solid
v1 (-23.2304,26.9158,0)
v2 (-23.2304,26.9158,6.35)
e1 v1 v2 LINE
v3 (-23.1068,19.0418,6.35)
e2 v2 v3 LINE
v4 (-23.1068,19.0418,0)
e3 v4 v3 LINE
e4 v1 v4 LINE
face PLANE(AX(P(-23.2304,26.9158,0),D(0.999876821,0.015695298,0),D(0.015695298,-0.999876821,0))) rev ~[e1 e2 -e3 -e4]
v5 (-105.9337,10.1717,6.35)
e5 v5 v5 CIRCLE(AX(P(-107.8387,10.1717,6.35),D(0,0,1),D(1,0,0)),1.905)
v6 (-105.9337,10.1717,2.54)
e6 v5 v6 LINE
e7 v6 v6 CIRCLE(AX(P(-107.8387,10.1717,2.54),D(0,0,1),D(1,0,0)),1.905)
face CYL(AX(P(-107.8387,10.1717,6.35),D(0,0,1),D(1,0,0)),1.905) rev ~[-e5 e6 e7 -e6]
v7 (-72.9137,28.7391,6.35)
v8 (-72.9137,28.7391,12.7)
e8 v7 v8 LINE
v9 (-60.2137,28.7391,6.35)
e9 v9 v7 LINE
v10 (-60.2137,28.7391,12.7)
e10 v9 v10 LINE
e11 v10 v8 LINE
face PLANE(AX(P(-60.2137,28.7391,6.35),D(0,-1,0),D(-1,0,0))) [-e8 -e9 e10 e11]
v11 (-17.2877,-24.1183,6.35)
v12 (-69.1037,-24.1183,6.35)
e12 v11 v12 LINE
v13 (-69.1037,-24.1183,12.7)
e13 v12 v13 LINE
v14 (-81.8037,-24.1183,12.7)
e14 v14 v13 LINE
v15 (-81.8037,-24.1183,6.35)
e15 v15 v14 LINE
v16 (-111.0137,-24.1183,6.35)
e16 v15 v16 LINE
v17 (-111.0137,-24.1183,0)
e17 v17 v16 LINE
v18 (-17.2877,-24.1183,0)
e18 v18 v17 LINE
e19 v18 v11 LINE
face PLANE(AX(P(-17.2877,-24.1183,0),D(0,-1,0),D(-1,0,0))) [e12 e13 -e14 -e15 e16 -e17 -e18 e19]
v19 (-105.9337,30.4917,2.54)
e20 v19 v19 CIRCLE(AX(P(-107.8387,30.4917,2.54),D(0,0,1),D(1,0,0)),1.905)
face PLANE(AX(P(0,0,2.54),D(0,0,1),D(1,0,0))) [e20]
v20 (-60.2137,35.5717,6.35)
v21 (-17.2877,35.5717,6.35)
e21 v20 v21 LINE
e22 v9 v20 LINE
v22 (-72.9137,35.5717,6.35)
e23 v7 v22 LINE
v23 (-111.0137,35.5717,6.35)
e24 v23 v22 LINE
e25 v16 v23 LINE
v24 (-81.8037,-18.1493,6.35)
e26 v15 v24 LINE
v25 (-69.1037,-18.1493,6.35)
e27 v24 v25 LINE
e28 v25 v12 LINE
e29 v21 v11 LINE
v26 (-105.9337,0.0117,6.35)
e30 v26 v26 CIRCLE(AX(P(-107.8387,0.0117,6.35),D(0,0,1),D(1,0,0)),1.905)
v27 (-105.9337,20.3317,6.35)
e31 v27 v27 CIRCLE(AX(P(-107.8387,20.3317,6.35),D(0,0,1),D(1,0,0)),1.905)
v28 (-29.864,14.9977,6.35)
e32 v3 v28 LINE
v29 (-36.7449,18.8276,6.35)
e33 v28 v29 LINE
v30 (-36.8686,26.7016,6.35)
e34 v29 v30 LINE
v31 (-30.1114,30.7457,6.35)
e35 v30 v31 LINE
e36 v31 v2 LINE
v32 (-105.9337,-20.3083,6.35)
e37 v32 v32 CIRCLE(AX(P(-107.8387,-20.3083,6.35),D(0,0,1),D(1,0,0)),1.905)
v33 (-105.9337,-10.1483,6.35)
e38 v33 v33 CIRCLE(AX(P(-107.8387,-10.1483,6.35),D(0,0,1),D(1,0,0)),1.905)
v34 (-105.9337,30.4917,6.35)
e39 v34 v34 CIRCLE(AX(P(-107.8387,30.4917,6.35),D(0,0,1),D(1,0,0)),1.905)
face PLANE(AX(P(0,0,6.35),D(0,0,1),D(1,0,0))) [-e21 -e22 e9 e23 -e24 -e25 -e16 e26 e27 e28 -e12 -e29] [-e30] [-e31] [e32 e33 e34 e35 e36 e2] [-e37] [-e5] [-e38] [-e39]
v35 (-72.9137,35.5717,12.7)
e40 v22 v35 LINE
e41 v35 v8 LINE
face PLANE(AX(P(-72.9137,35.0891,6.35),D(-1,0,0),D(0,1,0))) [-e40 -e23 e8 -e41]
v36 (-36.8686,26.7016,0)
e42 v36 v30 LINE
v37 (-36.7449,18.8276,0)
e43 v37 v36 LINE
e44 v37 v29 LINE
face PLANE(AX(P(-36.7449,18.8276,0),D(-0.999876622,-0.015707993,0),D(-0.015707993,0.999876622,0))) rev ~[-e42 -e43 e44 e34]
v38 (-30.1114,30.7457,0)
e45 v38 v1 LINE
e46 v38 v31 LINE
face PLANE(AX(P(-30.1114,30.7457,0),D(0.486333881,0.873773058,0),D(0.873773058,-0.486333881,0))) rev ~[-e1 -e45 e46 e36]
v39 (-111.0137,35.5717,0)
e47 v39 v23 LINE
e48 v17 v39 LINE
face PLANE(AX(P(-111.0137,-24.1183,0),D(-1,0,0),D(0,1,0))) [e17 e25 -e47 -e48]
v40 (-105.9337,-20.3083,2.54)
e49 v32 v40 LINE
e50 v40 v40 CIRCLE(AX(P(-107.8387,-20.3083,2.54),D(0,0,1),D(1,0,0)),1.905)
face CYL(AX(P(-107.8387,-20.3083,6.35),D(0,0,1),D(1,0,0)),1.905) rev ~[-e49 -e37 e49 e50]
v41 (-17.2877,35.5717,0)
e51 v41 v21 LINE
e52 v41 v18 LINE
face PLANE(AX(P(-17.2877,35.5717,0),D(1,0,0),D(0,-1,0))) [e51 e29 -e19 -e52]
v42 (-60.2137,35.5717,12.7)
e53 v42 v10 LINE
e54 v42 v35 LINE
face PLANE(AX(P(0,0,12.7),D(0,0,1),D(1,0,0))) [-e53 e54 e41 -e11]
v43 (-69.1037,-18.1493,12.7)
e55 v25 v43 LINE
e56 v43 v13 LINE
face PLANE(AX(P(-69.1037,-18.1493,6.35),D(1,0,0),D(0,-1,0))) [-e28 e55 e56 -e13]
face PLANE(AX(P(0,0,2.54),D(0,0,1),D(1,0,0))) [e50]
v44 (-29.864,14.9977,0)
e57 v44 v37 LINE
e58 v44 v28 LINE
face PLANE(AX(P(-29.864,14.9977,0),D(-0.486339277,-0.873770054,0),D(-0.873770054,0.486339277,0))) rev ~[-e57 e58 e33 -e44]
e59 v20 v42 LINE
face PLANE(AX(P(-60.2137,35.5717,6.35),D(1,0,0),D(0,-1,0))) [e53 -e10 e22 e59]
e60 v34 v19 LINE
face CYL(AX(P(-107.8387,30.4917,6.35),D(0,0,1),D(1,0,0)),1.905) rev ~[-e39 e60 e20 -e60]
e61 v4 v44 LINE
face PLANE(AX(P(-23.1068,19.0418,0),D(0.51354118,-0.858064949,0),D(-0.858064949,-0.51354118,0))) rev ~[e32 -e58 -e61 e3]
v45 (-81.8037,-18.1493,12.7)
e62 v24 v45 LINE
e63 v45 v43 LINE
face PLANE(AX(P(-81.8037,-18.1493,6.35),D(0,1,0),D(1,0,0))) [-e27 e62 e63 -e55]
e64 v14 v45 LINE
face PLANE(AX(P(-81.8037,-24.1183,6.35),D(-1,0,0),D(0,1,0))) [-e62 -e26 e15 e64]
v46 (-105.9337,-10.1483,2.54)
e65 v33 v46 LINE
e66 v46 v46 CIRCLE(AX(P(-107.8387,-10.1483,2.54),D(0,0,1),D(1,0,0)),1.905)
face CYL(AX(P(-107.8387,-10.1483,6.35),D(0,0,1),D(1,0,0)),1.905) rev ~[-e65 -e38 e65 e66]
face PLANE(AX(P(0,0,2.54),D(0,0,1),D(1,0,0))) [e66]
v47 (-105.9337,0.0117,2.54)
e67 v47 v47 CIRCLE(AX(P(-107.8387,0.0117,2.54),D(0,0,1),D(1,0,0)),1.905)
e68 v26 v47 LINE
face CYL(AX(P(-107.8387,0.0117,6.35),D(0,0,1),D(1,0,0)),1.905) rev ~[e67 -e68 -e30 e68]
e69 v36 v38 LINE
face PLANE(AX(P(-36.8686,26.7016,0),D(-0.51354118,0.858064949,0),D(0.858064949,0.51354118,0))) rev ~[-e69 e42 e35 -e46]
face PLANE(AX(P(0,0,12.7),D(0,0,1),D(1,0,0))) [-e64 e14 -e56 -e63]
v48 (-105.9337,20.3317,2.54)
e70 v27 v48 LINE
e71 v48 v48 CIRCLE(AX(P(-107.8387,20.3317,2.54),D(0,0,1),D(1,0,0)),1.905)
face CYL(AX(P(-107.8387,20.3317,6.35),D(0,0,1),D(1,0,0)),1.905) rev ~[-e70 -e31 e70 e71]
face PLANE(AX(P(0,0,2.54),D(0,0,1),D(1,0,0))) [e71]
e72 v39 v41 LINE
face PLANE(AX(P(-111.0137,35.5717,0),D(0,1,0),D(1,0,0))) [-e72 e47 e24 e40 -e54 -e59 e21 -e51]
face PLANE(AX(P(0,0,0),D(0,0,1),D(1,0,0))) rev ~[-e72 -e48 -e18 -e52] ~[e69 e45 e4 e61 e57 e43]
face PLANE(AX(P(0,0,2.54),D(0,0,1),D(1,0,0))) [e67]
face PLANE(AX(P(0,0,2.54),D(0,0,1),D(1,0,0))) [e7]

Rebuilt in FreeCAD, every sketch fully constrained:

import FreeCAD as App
import Part
import Sketcher
from FreeCAD import Vector
Q = App.Units.Quantity


def add_polygon(sketch, points):
    """Adds a closed chain of lines whose ends are joined by coincident constraints."""
    first, n = sketch.GeometryCount, len(points)
    for a, b in zip(points, points[1:] + points[:1]):
        sketch.addGeometry(Part.LineSegment(App.Vector(*a, 0), App.Vector(*b, 0)), False)
    for i in range(n):
        sketch.addConstraint(Sketcher.Constraint("Coincident", first + i, 2, first + (i + 1) % n, 1))

doc = App.newDocument("Part")
body = doc.addObject("PartDesign::Body", "Body")

# Sketch on XY plane
sketch1 = body.newObject("Sketcher::SketchObject", "Sketch")
sketch1.AttachmentSupport = (doc.getObject("XY_Plane"), [""])
sketch1.MapMode = "FlatFace"
add_polygon(sketch1, [(-17, 36), (-111, 36), (-111, -24), (-17, -24)])  # lines 0-3
add_polygon(sketch1, [(-37, 19), (-37, 27), (-30, 31), (-23, 27), (-23, 19), (-30, 15)])  # lines 4-9
sketch1.addConstraint([
    Sketcher.Constraint("Horizontal", 0),
    Sketcher.Constraint("Vertical", 1),
    Sketcher.Constraint("Horizontal", 2),
    Sketcher.Constraint("Vertical", 3),
    Sketcher.Constraint("Parallel", 4, 7),
    Sketcher.Constraint("Parallel", 5, 8),
    Sketcher.Constraint("Parallel", 6, 9),
    Sketcher.Constraint("Equal", 4, 5),
    Sketcher.Constraint("Equal", 5, 6),
    Sketcher.Constraint("Equal", 6, 7),
    Sketcher.Constraint("DistanceX", 0, 2, 0, 1, Q("3.69 in")),
    Sketcher.Constraint("DistanceY", 1, 2, 1, 1, Q("2.35 in")),
    Sketcher.Constraint("DistanceY", 7, 2, 6, 2, Q("0.31 in")),
    Sketcher.Constraint("Angle", 4, Q("90.9 deg")),
    Sketcher.Constraint("Angle", 5, Q("30.9 deg")),
    Sketcher.Constraint("Angle", 6, Q("-29.1 deg")),
    Sketcher.Constraint("DistanceY", 5, 2, 3, 2, Q("0.19 in")),
    Sketcher.Constraint("DistanceX", 5, 2, -1, 1, Q("1.1855 in")),
    Sketcher.Constraint("DistanceX", 4, 2, 3, 2, Q("0.7709 in")),
    Sketcher.Constraint("DistanceY", -1, 1, 0, 2, 35.5717),
])
pad1 = body.newObject("PartDesign::Pad", "Pad")
pad1.Profile = sketch1
pad1.Length = Q("0.25 in")

# Sketch on XY plane
sketch2 = body.newObject("Sketcher::SketchObject", "Sketch001")
sketch2.AttachmentSupport = (doc.getObject("XY_Plane"), [""])
sketch2.MapMode = "FlatFace"
sketch2.AttachmentOffset = App.Placement(Vector(0, 0, 0.25 * 25.4), App.Rotation())
sketch2.addGeometry([
    Part.Circle(Vector(-107.8, 30.5, 0), Vector(0, 0, 1), 1.9),  # 0
    Part.Circle(Vector(-107.8, 20.3, 0), Vector(0, 0, 1), 1.9),  # 1
    Part.Circle(Vector(-107.8, -10.1, 0), Vector(0, 0, 1), 1.9),  # 2
    Part.Circle(Vector(-107.8, -20.3, 0), Vector(0, 0, 1), 1.9),  # 3
    Part.Circle(Vector(-107.8, 10.2, 0), Vector(0, 0, 1), 1.9),  # 4
    Part.Circle(Vector(-107.8, 0, 0), Vector(0, 0, 1), 1.9),  # 5
], False)
sketch2.addConstraint([
    Sketcher.Constraint("Equal", 0, 1),
    Sketcher.Constraint("Equal", 1, 2),
    Sketcher.Constraint("Equal", 2, 3),
    Sketcher.Constraint("Equal", 3, 4),
    Sketcher.Constraint("Equal", 4, 5),
    Sketcher.Constraint("Vertical", 0, 3, 1, 3),
    Sketcher.Constraint("Vertical", 1, 3, 2, 3),
    Sketcher.Constraint("Vertical", 2, 3, 3, 3),
    Sketcher.Constraint("Vertical", 3, 3, 4, 3),
    Sketcher.Constraint("Vertical", 4, 3, 5, 3),
    Sketcher.Constraint("Diameter", 0, Q("0.15 in")),
    Sketcher.Constraint("DistanceY", 1, 3, 0, 3, Q("0.4 in")),
    Sketcher.Constraint("DistanceY", 3, 3, 2, 3, Q("0.4 in")),
    Sketcher.Constraint("DistanceY", 4, 3, 1, 3, Q("0.4 in")),
    Sketcher.Constraint("DistanceY", 2, 3, 5, 3, Q("0.4 in")),
    Sketcher.Constraint("DistanceY", 5, 3, 4, 3, Q("0.4 in")),
    Sketcher.Constraint("DistanceX", 0, 3, -1, 1, 107.8387),
    Sketcher.Constraint("DistanceY", -1, 1, 0, 3, 30.4917),
])
pocket1 = body.newObject("PartDesign::Pocket", "Pocket")
pocket1.Profile = sketch2
pocket1.Length = Q("0.15 in")

# Sketch on XY plane
sketch3 = body.newObject("Sketcher::SketchObject", "Sketch002")
sketch3.AttachmentSupport = (doc.getObject("XY_Plane"), [""])
sketch3.MapMode = "FlatFace"
sketch3.AttachmentOffset = App.Placement(Vector(0, 0, 0.25 * 25.4), App.Rotation())
add_polygon(sketch3, [(-60, 36), (-73, 36), (-73, 29), (-60, 29)])  # lines 0-3
add_polygon(sketch3, [(-82, -18), (-82, -24), (-69, -24), (-69, -18)])  # lines 4-7
sketch3.addConstraint([
    Sketcher.Constraint("Horizontal", 0),
    Sketcher.Constraint("Vertical", 1),
    Sketcher.Constraint("Horizontal", 2),
    Sketcher.Constraint("Vertical", 3),
    Sketcher.Constraint("Vertical", 4),
    Sketcher.Constraint("Horizontal", 5),
    Sketcher.Constraint("Vertical", 6),
    Sketcher.Constraint("Horizontal", 7),
    Sketcher.Constraint("Equal", 2, 5),
    Sketcher.Constraint("DistanceX", 0, 2, 0, 1, Q("0.5 in")),
    Sketcher.Constraint("DistanceY", 1, 2, 1, 1, Q("0.269 in")),
    Sketcher.Constraint("DistanceY", 4, 2, 4, 1, Q("0.235 in")),
    Sketcher.Constraint("DistanceX", 4, 2, 1, 2, Q("0.35 in")),
    Sketcher.Constraint("DistanceY", 4, 2, 0, 2, Q("2.35 in")),
    Sketcher.Constraint("DistanceX", 0, 2, -1, 1, 72.9137),
    Sketcher.Constraint("DistanceY", -1, 1, 0, 2, 35.5717),
])
pad2 = body.newObject("PartDesign::Pad", "Pad001")
pad2.Profile = sketch3
pad2.Length = Q("0.25 in")

doc.recompute()
